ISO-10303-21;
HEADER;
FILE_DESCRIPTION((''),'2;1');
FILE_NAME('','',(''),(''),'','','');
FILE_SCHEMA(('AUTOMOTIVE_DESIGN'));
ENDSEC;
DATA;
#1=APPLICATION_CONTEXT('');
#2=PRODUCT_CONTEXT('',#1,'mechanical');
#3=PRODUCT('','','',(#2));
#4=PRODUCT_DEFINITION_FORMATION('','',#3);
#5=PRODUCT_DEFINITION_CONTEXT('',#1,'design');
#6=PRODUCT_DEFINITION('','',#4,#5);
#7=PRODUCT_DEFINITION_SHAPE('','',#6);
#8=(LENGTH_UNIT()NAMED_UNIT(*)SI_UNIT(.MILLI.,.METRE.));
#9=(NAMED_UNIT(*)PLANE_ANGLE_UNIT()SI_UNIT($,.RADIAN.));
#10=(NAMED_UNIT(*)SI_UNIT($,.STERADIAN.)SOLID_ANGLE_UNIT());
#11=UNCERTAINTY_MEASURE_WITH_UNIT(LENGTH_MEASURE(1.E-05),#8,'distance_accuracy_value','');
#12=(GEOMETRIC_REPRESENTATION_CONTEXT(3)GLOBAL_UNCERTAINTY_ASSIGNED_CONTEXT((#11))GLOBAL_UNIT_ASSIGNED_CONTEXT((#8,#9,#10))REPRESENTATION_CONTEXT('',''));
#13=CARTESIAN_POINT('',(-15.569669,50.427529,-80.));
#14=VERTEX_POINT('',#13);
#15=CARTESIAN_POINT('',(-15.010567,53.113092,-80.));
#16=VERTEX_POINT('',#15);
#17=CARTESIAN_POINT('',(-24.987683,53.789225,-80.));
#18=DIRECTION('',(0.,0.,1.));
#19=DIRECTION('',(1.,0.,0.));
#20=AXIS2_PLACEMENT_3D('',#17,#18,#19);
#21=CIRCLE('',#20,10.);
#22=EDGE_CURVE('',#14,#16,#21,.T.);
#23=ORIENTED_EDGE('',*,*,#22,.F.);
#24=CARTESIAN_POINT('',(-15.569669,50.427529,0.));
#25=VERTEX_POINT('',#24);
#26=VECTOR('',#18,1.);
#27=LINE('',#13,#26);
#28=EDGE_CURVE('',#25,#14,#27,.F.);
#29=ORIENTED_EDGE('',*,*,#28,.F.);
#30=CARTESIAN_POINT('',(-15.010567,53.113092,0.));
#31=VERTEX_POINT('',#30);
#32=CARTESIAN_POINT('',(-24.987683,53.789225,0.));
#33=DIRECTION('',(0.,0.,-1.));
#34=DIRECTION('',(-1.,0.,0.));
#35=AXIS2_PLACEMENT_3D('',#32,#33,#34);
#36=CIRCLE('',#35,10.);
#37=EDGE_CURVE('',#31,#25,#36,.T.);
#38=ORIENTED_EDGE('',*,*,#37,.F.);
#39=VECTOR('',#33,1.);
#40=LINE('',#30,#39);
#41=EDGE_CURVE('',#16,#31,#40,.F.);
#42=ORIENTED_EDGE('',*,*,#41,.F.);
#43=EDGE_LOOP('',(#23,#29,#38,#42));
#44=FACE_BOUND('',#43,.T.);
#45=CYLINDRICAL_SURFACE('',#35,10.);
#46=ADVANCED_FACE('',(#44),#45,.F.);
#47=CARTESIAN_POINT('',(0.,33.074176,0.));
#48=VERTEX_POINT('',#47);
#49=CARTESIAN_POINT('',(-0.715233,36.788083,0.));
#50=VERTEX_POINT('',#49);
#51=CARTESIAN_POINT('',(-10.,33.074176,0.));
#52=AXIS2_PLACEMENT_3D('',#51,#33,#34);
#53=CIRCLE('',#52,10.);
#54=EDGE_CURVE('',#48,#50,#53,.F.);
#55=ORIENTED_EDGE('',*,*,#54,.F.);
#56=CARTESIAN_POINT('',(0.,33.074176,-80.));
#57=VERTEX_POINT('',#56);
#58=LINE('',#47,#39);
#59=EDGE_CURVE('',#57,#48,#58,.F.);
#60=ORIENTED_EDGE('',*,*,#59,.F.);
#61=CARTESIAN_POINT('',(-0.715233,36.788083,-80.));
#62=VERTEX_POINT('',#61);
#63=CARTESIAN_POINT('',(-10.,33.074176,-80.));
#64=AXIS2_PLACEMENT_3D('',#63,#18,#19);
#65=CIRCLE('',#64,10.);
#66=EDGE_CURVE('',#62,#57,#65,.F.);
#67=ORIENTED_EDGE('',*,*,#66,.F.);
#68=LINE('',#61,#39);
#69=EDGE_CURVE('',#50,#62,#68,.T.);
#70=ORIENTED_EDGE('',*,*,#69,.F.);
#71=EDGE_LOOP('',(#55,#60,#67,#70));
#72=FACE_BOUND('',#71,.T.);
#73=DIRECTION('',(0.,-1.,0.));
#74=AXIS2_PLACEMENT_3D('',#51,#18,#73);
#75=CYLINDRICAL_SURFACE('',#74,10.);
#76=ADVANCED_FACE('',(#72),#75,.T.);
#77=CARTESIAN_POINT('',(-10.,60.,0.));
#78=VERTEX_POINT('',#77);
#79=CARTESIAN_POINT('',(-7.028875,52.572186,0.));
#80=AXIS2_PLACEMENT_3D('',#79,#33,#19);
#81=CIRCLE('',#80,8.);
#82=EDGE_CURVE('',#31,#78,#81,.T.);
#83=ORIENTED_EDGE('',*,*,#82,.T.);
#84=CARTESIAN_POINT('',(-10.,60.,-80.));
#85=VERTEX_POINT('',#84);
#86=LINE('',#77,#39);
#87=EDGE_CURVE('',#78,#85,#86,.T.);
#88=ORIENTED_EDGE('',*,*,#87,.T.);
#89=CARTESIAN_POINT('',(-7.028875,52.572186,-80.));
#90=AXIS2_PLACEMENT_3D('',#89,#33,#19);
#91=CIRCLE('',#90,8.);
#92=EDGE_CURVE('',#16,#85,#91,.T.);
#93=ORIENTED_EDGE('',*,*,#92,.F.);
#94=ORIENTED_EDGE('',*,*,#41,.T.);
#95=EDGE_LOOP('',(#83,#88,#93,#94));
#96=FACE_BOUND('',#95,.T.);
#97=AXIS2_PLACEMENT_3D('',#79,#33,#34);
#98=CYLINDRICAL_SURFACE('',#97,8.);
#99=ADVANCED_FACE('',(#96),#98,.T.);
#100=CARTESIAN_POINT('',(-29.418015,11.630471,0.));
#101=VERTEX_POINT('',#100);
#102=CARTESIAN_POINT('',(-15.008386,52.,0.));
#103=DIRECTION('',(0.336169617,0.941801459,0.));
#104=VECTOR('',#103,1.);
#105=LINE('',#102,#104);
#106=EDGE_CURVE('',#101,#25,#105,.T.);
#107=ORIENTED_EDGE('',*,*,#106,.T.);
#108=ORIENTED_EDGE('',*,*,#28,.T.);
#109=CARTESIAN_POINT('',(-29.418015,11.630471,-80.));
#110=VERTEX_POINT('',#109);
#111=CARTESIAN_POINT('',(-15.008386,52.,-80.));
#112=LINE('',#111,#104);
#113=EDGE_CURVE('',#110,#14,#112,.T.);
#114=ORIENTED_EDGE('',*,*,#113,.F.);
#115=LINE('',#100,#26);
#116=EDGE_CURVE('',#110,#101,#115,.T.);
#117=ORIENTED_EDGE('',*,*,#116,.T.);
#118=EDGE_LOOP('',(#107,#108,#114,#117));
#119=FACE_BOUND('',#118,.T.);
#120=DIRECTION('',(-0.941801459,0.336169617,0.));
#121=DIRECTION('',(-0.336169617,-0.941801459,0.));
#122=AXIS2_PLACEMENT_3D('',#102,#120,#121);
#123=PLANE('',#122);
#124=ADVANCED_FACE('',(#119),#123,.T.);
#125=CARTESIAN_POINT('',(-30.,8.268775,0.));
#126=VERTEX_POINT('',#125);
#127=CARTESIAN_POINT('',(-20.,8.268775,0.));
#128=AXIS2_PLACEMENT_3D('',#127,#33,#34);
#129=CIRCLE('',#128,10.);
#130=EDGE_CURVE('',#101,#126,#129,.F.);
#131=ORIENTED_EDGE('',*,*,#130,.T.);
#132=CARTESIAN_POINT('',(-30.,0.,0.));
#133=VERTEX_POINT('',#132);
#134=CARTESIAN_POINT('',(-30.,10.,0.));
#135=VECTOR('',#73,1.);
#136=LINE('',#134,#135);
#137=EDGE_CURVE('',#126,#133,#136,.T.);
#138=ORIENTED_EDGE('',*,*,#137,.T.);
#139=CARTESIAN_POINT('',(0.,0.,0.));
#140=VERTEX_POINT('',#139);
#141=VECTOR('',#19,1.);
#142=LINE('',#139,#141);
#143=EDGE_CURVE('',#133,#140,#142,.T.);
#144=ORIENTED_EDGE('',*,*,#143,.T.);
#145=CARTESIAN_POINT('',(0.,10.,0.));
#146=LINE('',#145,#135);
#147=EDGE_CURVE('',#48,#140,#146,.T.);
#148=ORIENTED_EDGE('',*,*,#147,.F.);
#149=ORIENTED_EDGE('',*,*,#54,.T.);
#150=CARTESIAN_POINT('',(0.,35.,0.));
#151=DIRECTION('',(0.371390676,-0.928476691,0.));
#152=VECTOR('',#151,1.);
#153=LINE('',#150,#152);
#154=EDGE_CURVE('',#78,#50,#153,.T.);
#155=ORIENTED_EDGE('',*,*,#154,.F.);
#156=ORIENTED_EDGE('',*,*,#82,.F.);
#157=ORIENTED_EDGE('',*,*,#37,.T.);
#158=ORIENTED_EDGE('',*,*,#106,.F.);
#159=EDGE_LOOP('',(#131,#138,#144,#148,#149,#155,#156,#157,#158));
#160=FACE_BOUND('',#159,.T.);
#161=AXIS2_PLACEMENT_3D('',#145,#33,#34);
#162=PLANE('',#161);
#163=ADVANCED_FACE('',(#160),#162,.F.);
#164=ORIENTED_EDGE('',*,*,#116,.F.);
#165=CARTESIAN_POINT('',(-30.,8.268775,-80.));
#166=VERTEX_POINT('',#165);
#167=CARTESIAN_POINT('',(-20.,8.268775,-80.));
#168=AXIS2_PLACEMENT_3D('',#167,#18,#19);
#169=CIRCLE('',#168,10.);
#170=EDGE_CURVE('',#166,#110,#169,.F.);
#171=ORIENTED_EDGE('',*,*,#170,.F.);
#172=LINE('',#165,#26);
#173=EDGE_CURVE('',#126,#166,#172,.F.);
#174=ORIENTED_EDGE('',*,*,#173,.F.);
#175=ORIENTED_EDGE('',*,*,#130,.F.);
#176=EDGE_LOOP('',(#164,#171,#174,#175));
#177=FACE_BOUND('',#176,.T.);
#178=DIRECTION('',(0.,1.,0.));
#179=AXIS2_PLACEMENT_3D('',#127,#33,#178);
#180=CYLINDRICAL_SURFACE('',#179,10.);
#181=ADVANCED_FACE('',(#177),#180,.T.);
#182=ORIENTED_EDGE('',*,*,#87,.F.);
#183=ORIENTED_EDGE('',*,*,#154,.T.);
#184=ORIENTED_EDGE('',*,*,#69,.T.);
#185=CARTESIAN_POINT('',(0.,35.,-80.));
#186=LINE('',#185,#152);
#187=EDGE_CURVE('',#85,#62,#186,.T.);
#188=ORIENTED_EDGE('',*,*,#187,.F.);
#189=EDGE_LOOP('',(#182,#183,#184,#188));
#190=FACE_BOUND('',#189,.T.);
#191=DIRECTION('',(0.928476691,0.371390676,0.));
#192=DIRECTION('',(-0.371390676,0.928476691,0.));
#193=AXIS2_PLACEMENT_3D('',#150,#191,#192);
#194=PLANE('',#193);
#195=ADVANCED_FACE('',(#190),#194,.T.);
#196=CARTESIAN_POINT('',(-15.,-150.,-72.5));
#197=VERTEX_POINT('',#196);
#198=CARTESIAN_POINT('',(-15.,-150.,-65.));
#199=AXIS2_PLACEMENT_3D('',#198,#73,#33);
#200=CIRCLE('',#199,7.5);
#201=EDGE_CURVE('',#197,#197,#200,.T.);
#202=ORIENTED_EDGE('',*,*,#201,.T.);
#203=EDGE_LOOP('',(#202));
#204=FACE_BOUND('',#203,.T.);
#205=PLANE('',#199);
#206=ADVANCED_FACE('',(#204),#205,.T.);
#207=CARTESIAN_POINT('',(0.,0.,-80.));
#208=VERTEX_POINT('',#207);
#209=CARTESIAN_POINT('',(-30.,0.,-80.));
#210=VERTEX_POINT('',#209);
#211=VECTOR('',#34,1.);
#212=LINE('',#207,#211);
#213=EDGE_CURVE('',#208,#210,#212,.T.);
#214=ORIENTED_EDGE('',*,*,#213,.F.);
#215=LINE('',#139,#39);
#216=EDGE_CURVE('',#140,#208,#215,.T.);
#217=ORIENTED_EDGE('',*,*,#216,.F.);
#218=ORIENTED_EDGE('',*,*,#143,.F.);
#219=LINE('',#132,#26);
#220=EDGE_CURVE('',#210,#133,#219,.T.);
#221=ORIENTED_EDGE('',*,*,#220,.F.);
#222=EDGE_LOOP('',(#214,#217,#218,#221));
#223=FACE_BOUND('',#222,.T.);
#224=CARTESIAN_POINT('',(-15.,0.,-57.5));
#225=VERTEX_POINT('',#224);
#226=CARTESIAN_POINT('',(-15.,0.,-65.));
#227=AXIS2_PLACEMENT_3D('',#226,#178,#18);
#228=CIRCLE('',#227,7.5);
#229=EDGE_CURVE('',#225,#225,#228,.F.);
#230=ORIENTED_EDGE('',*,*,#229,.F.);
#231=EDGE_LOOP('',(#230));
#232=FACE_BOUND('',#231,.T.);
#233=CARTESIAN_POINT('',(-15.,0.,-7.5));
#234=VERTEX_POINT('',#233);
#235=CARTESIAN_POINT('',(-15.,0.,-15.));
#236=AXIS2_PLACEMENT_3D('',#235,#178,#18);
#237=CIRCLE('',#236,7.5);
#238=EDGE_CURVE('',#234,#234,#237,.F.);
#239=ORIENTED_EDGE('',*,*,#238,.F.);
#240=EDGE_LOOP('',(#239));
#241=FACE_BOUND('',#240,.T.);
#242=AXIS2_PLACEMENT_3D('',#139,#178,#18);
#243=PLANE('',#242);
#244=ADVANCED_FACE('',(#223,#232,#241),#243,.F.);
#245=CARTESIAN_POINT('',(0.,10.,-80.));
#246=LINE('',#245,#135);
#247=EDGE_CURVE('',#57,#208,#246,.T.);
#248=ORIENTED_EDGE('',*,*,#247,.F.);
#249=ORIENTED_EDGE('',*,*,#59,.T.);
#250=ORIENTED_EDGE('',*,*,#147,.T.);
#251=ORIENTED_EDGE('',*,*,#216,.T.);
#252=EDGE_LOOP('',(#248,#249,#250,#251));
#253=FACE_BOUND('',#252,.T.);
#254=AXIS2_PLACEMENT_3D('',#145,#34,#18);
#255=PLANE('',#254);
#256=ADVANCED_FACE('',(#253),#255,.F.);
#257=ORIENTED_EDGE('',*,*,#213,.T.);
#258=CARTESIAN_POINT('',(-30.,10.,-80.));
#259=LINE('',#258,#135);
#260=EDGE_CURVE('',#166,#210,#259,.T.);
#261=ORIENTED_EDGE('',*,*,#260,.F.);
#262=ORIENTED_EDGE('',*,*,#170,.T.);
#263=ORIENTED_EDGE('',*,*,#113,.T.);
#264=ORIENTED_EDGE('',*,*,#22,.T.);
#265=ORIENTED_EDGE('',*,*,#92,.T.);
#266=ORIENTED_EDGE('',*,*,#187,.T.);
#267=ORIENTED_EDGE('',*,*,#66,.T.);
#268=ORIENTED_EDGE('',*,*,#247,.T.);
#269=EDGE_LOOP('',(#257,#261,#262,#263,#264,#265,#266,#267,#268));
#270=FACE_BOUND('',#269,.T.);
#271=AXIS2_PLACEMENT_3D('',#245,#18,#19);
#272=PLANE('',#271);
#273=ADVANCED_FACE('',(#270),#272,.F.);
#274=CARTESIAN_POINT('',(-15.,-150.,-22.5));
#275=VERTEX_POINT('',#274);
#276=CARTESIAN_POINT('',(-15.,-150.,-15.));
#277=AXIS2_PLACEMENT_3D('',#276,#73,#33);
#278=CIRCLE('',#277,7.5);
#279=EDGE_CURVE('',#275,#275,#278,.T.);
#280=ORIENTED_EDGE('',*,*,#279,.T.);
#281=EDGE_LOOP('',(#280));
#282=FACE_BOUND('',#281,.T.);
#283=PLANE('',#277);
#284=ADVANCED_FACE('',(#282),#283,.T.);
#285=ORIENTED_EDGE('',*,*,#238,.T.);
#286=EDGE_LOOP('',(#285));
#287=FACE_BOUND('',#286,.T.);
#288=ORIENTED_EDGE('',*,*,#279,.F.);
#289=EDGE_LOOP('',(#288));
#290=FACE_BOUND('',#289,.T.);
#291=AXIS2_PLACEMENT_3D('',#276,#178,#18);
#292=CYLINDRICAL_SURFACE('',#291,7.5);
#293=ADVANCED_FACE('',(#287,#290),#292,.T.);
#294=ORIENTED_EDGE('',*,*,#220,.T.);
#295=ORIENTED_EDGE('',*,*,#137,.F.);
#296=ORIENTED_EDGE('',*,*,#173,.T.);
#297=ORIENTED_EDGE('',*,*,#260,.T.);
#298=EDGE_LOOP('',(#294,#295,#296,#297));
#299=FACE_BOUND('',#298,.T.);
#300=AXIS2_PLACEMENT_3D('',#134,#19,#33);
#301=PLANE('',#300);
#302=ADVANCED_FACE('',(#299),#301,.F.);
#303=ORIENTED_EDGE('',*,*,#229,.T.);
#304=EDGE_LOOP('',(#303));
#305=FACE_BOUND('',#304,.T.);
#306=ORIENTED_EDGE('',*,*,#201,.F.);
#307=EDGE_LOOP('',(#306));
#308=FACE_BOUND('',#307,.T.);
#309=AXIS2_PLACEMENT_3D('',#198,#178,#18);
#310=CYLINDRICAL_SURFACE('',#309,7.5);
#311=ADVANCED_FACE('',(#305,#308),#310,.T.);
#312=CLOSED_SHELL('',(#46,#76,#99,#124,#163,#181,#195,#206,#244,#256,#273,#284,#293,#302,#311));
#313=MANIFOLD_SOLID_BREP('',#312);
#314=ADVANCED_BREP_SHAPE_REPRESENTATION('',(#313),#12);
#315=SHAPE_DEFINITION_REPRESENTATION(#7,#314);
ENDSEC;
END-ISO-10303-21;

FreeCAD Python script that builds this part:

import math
import FreeCAD as App
import Part
import Sketcher

V = App.Vector
Q = App.Units.Quantity


def edges_at(feature, points):
    """Names of the edges that pass closest to the given points."""
    edges = feature.Shape.Edges
    near = lambda p: min(range(len(edges)), key=lambda i: edges[i].distToShape(Part.Vertex(*p))[0])
    return sorted({f"Edge{near(p) + 1}" for p in points})

doc = App.newDocument("Part")
body = doc.addObject("PartDesign::Body", "Body")

# Sketch on XZ plane
sketch1 = doc.addObject("Sketcher::SketchObject", "Sketch")
body.addObject(sketch1)
sketch1.AttachmentSupport = (doc.XZ_Plane, [""])
sketch1.MapMode = "FlatFace"
sketch1.addGeometry([
    Part.LineSegment(V(-30, -80, 0), V(-30, 0, 0)),
    Part.LineSegment(V(-30, 0, 0), V(0, 0, 0)),
    Part.LineSegment(V(0, 0, 0), V(0, -80, 0)),
    Part.LineSegment(V(0, -80, 0), V(-30, -80, 0)),
], False)
sketch1.addConstraint([
    Sketcher.Constraint("Coincident", 0, 2, 1, 1),
    Sketcher.Constraint("Coincident", 1, 2, 2, 1),
    Sketcher.Constraint("Coincident", 2, 2, 3, 1),
    Sketcher.Constraint("Coincident", 3, 2, 0, 1),
    Sketcher.Constraint("Vertical", 0),
    Sketcher.Constraint("Horizontal", 1),
    Sketcher.Constraint("Vertical", 2),
    Sketcher.Constraint("Horizontal", 3),
    Sketcher.Constraint("Coincident", 1, 2, -1, 1),
    Sketcher.Constraint("DistanceX", 1, 1, 1, 2, Q("30 mm")),
    Sketcher.Constraint("DistanceY", 0, 1, 0, 2, Q("80 mm")),
])
pad1 = doc.addObject("PartDesign::Pad", "Pad")
body.addObject(pad1)
pad1.Profile = sketch1
pad1.Length = 10
pad1.Reversed = True

# Sketch on XY plane
sketch2 = doc.addObject("Sketcher::SketchObject", "Sketch001")
body.addObject(sketch2)
sketch2.AttachmentSupport = (doc.XY_Plane, [""])
sketch2.MapMode = "FlatFace"
sketch2.AttachmentOffset = App.Placement(V(0, 0, -80), App.Rotation())
sketch2.addGeometry([
    Part.LineSegment(V(-10, 60, 0), V(0, 35, 0)),  # 0
    Part.LineSegment(V(0, 35, 0), V(0, 0, 0)),  # 1
    Part.LineSegment(V(0, 0, 0), V(-30, 0, 0)),  # 2
    Part.LineSegment(V(-30, 0, 0), V(-30, 10, 0)),  # 3
    Part.LineSegment(V(-30, 10, 0), V(-15.008386, 52, 0)),  # 4
    Part.ArcOfCircle(Part.Circle(V(-7.028875, 52.572186, 0), V(0, 0, 1), 8), math.radians(111.801409), math.radians(184.101486)),  # 5
], False)
sketch2.addConstraint([
    Sketcher.Constraint("Coincident", 0, 2, 1, 1),
    Sketcher.Constraint("Coincident", 1, 2, 2, 1),
    Sketcher.Constraint("Coincident", 2, 2, 3, 1),
    Sketcher.Constraint("Coincident", 3, 2, 4, 1),
    Sketcher.Constraint("Coincident", 4, 2, 5, 2),
    Sketcher.Constraint("Coincident", 5, 1, 0, 1),
    Sketcher.Constraint("Vertical", 1),
    Sketcher.Constraint("Horizontal", 2),
    Sketcher.Constraint("Vertical", 3),
    Sketcher.Constraint("Coincident", 1, 2, -1, 1),
    Sketcher.Constraint("Radius", 5, Q("8 mm")),
    Sketcher.Constraint("DistanceX", 2, 2, 2, 1, Q("30 mm")),
    Sketcher.Constraint("DistanceY", 1, 2, 1, 1, Q("35 mm")),
    Sketcher.Constraint("DistanceY", 3, 1, 3, 2, Q("10 mm")),
    Sketcher.Constraint("DistanceY", -1, 1, 4, 2, Q("52 mm")),
    Sketcher.Constraint("DistanceX", 5, 1, -1, 1, Q("10 mm")),
    Sketcher.Constraint("DistanceY", -1, 1, 5, 1, Q("60 mm")),
    Sketcher.Constraint("DistanceX", 4, 2, 5, 3, Q("7.979511 mm")),
])
pad2 = doc.addObject("PartDesign::Pad", "Pad001")
body.addObject(pad2)
pad2.Profile = sketch2
pad2.Length = 80
doc.recompute()

fillet = doc.addObject("PartDesign::Fillet", "Fillet")
body.addObject(fillet)
fillet.Base = (pad2, edges_at(pad2, [(0, 35, -40)]))
fillet.Radius = 10
doc.recompute()

fillet2 = doc.addObject("PartDesign::Fillet", "Fillet001")
body.addObject(fillet2)
fillet2.Base = (fillet, edges_at(fillet, [(-15.008, 52, -40)]))
fillet2.Radius = 10
doc.recompute()

fillet3 = doc.addObject("PartDesign::Fillet", "Fillet002")
body.addObject(fillet3)
fillet3.Base = (fillet2, edges_at(fillet2, [(-30, 10, -40)]))
fillet3.Radius = 10

# Sketch on XZ plane
sketch3 = doc.addObject("Sketcher::SketchObject", "Sketch002")
body.addObject(sketch3)
sketch3.AttachmentSupport = (doc.XZ_Plane, [""])
sketch3.MapMode = "FlatFace"
sketch3.addGeometry([
    Part.Circle(V(-15, -15, 0), V(0, 0, 1), 7.5),
    Part.Circle(V(-15, -65, 0), V(0, 0, 1), 7.5),
], False)
sketch3.addConstraint([
    Sketcher.Constraint("Equal", 0, 1),
    Sketcher.Constraint("Vertical", 0, 3, 1, 3),
    Sketcher.Constraint("Diameter", 0, Q("15 mm")),
    Sketcher.Constraint("DistanceX", 0, 3, -1, 1, Q("15 mm")),
    Sketcher.Constraint("DistanceY", 0, 3, -1, 1, Q("15 mm")),
    Sketcher.Constraint("DistanceY", 1, 3, -1, 1, Q("65 mm")),
])
pad3 = doc.addObject("PartDesign::Pad", "Pad002")
body.addObject(pad3)
pad3.Profile = sketch3
pad3.Length = 150

doc.recompute()
